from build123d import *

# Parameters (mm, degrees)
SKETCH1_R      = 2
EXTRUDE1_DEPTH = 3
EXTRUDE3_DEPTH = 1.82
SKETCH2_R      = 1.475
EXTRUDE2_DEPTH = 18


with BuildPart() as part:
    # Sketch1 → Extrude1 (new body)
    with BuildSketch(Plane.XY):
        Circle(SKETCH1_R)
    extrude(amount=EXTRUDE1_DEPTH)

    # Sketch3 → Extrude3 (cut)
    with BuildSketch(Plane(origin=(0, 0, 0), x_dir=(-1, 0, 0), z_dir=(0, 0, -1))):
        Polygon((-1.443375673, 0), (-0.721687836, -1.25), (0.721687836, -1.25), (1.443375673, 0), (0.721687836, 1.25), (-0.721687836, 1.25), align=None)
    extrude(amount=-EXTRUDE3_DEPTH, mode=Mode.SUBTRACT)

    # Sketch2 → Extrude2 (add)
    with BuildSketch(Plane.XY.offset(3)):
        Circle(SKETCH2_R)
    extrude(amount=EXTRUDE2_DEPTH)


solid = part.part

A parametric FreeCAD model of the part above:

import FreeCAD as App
import Part
import Sketcher

V = App.Vector
Q = App.Units.Quantity

doc = App.newDocument("Part")
params = doc.addObject("Spreadsheet::Sheet", "Params")
for row, (alias, value) in enumerate([
    ("sketch1_diameter", "4 mm"),
    ("pad1_length", "3 mm"),
    ("pocket1_length", "1.82 mm"),
    ("sketch3_diameter", "2.95 mm"),
    ("pad2_length", "18 mm"),
], start=1):
    params.set(f"A{row}", alias)
    params.set(f"B{row}", "=" + value)
    params.setAlias(f"B{row}", alias)

body = doc.addObject("PartDesign::Body", "Body")

sketch1 = body.newObject("Sketcher::SketchObject", "Sketch")
sketch1.AttachmentSupport = (doc.getObject("XY_Plane"), [""])
sketch1.MapMode = "FlatFace"
sketch1.addGeometry(Part.Circle(V(0, 0, 0), V(0, 0, 1), 2), False)
sketch1.addConstraint([
    Sketcher.Constraint("Coincident", 0, 3, -1, 1),
    Sketcher.Constraint("Diameter", 0, Q("4 mm")),
])
sketch1.setExpression("Constraints[1]", "Params.sketch1_diameter")
pad1 = body.newObject("PartDesign::Pad", "Pad")
pad1.Profile = sketch1
pad1.setExpression("Length", "Params.pad1_length")

sketch2 = body.newObject("Sketcher::SketchObject", "Sketch001")
sketch2.AttachmentSupport = (doc.getObject("XY_Plane"), [""])
sketch2.MapMode = "FlatFace"
sketch2.addGeometry([
    Part.LineSegment(V(1.4, 0, 0), V(0.7, -1.2, 0)),
    Part.LineSegment(V(0.7, -1.2, 0), V(-0.7, -1.2, 0)),
    Part.LineSegment(V(-0.7, -1.2, 0), V(-1.4, 0, 0)),
    Part.LineSegment(V(-1.4, 0, 0), V(-0.7, 1.2, 0)),
    Part.LineSegment(V(-0.7, 1.2, 0), V(0.7, 1.2, 0)),
    Part.LineSegment(V(0.7, 1.2, 0), V(1.4, 0, 0)),
], False)
sketch2.addConstraint([
    Sketcher.Constraint("Coincident", 0, 2, 1, 1),
    Sketcher.Constraint("Coincident", 1, 2, 2, 1),
    Sketcher.Constraint("Coincident", 2, 2, 3, 1),
    Sketcher.Constraint("Coincident", 3, 2, 4, 1),
    Sketcher.Constraint("Coincident", 4, 2, 5, 1),
    Sketcher.Constraint("Coincident", 5, 2, 0, 1),
    Sketcher.Constraint("Horizontal", 1),
    Sketcher.Constraint("Horizontal", 4),
    Sketcher.Constraint("Symmetric", 0, 2, 3, 2, -1, 1),
    Sketcher.Constraint("Symmetric", 2, 2, 5, 2, -1, 1),
    Sketcher.Constraint("PointOnObject", 2, 2, -1),
    Sketcher.Constraint("Parallel", 2, 5),
    Sketcher.Constraint("Vertical", 1, 2, 3, 2),
    Sketcher.Constraint("Angle", 0, Q("-120 deg")),
    Sketcher.Constraint("DistanceY", 1, 2, 3, 2, Q("2.5 mm")),
    Sketcher.Constraint("DistanceX", 1, 2, 1, 1, Q("1.443376 mm")),
])
pocket1 = body.newObject("PartDesign::Pocket", "Pocket")
pocket1.Profile = sketch2
pocket1.setExpression("Length", "Params.pocket1_length")
pocket1.Reversed = True

sketch3 = body.newObject("Sketcher::SketchObject", "Sketch002")
sketch3.AttachmentSupport = (doc.getObject("XY_Plane"), [""])
sketch3.MapMode = "FlatFace"
sketch3.AttachmentOffset = App.Placement(V(0, 0, 3), App.Rotation())
sketch3.addGeometry(Part.Circle(V(0, 0, 0), V(0, 0, 1), 1.5), False)
sketch3.addConstraint([
    Sketcher.Constraint("Coincident", 0, 3, -1, 1),
    Sketcher.Constraint("Diameter", 0, Q("2.95 mm")),
])
sketch3.setExpression("Constraints[1]", "Params.sketch3_diameter")
pad2 = body.newObject("PartDesign::Pad", "Pad001")
pad2.Profile = sketch3
pad2.setExpression("Length", "Params.pad2_length")

doc.recompute()
